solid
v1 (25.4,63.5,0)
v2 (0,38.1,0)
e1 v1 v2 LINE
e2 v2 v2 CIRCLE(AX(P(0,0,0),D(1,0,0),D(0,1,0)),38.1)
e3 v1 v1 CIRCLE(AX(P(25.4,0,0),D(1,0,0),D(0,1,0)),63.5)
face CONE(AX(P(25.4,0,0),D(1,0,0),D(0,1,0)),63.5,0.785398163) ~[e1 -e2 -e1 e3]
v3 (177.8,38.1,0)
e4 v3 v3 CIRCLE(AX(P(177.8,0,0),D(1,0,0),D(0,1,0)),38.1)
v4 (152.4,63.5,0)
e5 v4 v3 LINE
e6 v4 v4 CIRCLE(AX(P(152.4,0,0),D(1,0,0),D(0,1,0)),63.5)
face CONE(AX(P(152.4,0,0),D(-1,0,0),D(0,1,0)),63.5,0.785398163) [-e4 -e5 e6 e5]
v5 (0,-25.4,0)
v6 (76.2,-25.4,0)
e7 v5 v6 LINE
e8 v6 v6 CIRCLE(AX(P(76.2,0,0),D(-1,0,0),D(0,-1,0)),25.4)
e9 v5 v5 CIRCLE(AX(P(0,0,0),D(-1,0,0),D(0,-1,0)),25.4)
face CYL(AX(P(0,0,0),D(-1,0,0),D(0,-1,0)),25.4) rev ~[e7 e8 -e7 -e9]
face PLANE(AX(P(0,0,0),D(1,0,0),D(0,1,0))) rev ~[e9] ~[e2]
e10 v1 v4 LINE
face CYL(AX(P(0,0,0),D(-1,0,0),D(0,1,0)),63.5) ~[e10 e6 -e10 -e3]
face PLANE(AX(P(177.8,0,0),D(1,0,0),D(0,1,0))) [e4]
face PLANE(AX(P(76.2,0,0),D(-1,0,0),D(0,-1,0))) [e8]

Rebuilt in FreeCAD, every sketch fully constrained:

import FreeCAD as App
import Part
import Sketcher
Q = App.Units.Quantity


def edges_at(feature, points):
    """Names of the edges that pass closest to the given points."""
    edges = feature.Shape.Edges
    near = lambda p: min(range(len(edges)), key=lambda i: edges[i].distToShape(Part.Vertex(*p))[0])
    return sorted({f"Edge{near(p) + 1}" for p in points})

doc = App.newDocument("Part")
body = doc.addObject("PartDesign::Body", "Body")

# Sketch on YZ plane
sketch1 = body.newObject("Sketcher::SketchObject", "Sketch")
sketch1.AttachmentSupport = (doc.getObject("YZ_Plane"), [""])
sketch1.MapMode = "FlatFace"
sketch1.addGeometry(Part.Circle(App.Vector(0, 0, 0), App.Vector(0, 0, 1), 64), False)
sketch1.addConstraint([
    Sketcher.Constraint("Coincident", 0, 3, -1, 1),
    Sketcher.Constraint("Diameter", 0, Q("5 in")),
])
pad1 = body.newObject("PartDesign::Pad", "Pad")
pad1.Profile = sketch1
pad1.Length = Q("7 in")

# Sketch on YZ plane
sketch2 = body.newObject("Sketcher::SketchObject", "Sketch001")
sketch2.AttachmentSupport = (doc.getObject("YZ_Plane"), [""])
sketch2.MapMode = "FlatFace"
sketch2.addGeometry(Part.Circle(App.Vector(0, 0, 0), App.Vector(0, 0, 1), 25), False)
sketch2.addConstraint([
    Sketcher.Constraint("Coincident", 0, 3, -1, 1),
    Sketcher.Constraint("Diameter", 0, Q("2 in")),
])
pocket1 = body.newObject("PartDesign::Pocket", "Pocket")
pocket1.Profile = sketch2
pocket1.Length = Q("3 in")
pocket1.Reversed = True
doc.recompute()

chamfer = body.newObject("PartDesign::Chamfer", "Chamfer")
chamfer.Base = (pocket1, edges_at(pocket1, [(0, -63.5, 0), (177.8, -63.5, 0)]))
chamfer.Size = Q("1 in")

doc.recompute()
